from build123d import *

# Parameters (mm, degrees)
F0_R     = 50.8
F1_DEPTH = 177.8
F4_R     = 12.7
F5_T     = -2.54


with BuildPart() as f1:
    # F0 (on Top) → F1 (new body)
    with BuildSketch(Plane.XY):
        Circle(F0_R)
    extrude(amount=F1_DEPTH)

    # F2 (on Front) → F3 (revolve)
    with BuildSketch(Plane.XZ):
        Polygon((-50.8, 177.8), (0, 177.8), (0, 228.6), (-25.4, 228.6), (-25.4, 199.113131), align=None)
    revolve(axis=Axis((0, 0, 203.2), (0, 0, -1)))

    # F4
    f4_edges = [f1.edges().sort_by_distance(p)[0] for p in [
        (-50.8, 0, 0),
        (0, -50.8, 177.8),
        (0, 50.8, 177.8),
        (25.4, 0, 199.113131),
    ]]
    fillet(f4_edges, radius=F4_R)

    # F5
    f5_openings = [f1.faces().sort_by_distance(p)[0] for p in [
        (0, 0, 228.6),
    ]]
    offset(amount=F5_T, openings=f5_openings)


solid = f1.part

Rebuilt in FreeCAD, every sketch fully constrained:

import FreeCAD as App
import Part
import Sketcher
from FreeCAD import Vector
Q = App.Units.Quantity


def edges_at(feature, points):
    """Names of the edges that pass closest to the given points."""
    edges = feature.Shape.Edges
    near = lambda p: min(range(len(edges)), key=lambda i: edges[i].distToShape(Part.Vertex(*p))[0])
    return sorted({f"Edge{near(p) + 1}" for p in points})


def faces_at(feature, points):
    """Names of the faces that lie closest to the given points."""
    faces = feature.Shape.Faces
    near = lambda p: min(range(len(faces)), key=lambda i: faces[i].distToShape(Part.Vertex(*p))[0])
    return sorted({f"Face{near(p) + 1}" for p in points})

doc = App.newDocument("Part")
body = doc.addObject("PartDesign::Body", "Body")

sketch1 = body.newObject("Sketcher::SketchObject", "Sketch")
sketch1.AttachmentSupport = (doc.getObject("XY_Plane"), [""])
sketch1.MapMode = "FlatFace"
sketch1.addGeometry(Part.Circle(Vector(0, 0, 0), Vector(0, 0, 1), 51), False)
sketch1.addConstraint([
    Sketcher.Constraint("Coincident", 0, 3, -1, 1),
    Sketcher.Constraint("Diameter", 0, Q("4 in")),
])
pad1 = body.newObject("PartDesign::Pad", "Pad")
pad1.Profile = sketch1
pad1.Length = Q("7 in")

sketch2 = body.newObject("Sketcher::SketchObject", "Sketch001")
sketch2.AttachmentSupport = (doc.getObject("XZ_Plane"), [""])
sketch2.MapMode = "FlatFace"
sketch2.addGeometry([
    Part.LineSegment(Vector(-51, 178, 0), Vector(0, 178, 0)),
    Part.LineSegment(Vector(0, 178, 0), Vector(0, 229, 0)),
    Part.LineSegment(Vector(0, 229, 0), Vector(-25, 229, 0)),
    Part.LineSegment(Vector(-25, 229, 0), Vector(-25, 199, 0)),
    Part.LineSegment(Vector(-25, 199, 0), Vector(-51, 178, 0)),
], False)
sketch2.addConstraint([
    Sketcher.Constraint("Coincident", 0, 2, 1, 1),
    Sketcher.Constraint("Coincident", 1, 2, 2, 1),
    Sketcher.Constraint("Coincident", 2, 2, 3, 1),
    Sketcher.Constraint("Coincident", 3, 2, 4, 1),
    Sketcher.Constraint("Coincident", 4, 2, 0, 1),
    Sketcher.Constraint("Horizontal", 0),
    Sketcher.Constraint("Vertical", 1),
    Sketcher.Constraint("Horizontal", 2),
    Sketcher.Constraint("Vertical", 3),
    Sketcher.Constraint("PointOnObject", 0, 2, -2),
    Sketcher.Constraint("Equal", 0, 1),
    Sketcher.Constraint("DistanceX", 0, 1, 0, 2, Q("2 in")),
    Sketcher.Constraint("DistanceX", 2, 2, 2, 1, Q("1 in")),
    Sketcher.Constraint("DistanceY", -1, 1, 0, 2, Q("7 in")),
    Sketcher.Constraint("Angle", 4, Q("-140 deg")),
])
revolution = body.newObject("PartDesign::Revolution", "Revolution")
revolution.Profile = sketch2
revolution.ReferenceAxis = (sketch2, ["V_Axis"])
revolution.Angle = 360
doc.recompute()

fillet = body.newObject("PartDesign::Fillet", "Fillet")
fillet.Base = (revolution, edges_at(revolution, [
    (-50.8, 0, 0),
    (0, -50.8, 177.8),
    (0, 50.8, 177.8),
    (25.4, 0, 199.113),
]))
fillet.Radius = Q("0.5 in")
doc.recompute()

thickness = body.newObject("PartDesign::Thickness", "Thickness")
thickness.Base = (fillet, faces_at(fillet, [(0, 0, 228.6)]))
thickness.Value = Q("0.1 in")
thickness.Reversed = True
thickness.Join = "Arc"

doc.recompute()
